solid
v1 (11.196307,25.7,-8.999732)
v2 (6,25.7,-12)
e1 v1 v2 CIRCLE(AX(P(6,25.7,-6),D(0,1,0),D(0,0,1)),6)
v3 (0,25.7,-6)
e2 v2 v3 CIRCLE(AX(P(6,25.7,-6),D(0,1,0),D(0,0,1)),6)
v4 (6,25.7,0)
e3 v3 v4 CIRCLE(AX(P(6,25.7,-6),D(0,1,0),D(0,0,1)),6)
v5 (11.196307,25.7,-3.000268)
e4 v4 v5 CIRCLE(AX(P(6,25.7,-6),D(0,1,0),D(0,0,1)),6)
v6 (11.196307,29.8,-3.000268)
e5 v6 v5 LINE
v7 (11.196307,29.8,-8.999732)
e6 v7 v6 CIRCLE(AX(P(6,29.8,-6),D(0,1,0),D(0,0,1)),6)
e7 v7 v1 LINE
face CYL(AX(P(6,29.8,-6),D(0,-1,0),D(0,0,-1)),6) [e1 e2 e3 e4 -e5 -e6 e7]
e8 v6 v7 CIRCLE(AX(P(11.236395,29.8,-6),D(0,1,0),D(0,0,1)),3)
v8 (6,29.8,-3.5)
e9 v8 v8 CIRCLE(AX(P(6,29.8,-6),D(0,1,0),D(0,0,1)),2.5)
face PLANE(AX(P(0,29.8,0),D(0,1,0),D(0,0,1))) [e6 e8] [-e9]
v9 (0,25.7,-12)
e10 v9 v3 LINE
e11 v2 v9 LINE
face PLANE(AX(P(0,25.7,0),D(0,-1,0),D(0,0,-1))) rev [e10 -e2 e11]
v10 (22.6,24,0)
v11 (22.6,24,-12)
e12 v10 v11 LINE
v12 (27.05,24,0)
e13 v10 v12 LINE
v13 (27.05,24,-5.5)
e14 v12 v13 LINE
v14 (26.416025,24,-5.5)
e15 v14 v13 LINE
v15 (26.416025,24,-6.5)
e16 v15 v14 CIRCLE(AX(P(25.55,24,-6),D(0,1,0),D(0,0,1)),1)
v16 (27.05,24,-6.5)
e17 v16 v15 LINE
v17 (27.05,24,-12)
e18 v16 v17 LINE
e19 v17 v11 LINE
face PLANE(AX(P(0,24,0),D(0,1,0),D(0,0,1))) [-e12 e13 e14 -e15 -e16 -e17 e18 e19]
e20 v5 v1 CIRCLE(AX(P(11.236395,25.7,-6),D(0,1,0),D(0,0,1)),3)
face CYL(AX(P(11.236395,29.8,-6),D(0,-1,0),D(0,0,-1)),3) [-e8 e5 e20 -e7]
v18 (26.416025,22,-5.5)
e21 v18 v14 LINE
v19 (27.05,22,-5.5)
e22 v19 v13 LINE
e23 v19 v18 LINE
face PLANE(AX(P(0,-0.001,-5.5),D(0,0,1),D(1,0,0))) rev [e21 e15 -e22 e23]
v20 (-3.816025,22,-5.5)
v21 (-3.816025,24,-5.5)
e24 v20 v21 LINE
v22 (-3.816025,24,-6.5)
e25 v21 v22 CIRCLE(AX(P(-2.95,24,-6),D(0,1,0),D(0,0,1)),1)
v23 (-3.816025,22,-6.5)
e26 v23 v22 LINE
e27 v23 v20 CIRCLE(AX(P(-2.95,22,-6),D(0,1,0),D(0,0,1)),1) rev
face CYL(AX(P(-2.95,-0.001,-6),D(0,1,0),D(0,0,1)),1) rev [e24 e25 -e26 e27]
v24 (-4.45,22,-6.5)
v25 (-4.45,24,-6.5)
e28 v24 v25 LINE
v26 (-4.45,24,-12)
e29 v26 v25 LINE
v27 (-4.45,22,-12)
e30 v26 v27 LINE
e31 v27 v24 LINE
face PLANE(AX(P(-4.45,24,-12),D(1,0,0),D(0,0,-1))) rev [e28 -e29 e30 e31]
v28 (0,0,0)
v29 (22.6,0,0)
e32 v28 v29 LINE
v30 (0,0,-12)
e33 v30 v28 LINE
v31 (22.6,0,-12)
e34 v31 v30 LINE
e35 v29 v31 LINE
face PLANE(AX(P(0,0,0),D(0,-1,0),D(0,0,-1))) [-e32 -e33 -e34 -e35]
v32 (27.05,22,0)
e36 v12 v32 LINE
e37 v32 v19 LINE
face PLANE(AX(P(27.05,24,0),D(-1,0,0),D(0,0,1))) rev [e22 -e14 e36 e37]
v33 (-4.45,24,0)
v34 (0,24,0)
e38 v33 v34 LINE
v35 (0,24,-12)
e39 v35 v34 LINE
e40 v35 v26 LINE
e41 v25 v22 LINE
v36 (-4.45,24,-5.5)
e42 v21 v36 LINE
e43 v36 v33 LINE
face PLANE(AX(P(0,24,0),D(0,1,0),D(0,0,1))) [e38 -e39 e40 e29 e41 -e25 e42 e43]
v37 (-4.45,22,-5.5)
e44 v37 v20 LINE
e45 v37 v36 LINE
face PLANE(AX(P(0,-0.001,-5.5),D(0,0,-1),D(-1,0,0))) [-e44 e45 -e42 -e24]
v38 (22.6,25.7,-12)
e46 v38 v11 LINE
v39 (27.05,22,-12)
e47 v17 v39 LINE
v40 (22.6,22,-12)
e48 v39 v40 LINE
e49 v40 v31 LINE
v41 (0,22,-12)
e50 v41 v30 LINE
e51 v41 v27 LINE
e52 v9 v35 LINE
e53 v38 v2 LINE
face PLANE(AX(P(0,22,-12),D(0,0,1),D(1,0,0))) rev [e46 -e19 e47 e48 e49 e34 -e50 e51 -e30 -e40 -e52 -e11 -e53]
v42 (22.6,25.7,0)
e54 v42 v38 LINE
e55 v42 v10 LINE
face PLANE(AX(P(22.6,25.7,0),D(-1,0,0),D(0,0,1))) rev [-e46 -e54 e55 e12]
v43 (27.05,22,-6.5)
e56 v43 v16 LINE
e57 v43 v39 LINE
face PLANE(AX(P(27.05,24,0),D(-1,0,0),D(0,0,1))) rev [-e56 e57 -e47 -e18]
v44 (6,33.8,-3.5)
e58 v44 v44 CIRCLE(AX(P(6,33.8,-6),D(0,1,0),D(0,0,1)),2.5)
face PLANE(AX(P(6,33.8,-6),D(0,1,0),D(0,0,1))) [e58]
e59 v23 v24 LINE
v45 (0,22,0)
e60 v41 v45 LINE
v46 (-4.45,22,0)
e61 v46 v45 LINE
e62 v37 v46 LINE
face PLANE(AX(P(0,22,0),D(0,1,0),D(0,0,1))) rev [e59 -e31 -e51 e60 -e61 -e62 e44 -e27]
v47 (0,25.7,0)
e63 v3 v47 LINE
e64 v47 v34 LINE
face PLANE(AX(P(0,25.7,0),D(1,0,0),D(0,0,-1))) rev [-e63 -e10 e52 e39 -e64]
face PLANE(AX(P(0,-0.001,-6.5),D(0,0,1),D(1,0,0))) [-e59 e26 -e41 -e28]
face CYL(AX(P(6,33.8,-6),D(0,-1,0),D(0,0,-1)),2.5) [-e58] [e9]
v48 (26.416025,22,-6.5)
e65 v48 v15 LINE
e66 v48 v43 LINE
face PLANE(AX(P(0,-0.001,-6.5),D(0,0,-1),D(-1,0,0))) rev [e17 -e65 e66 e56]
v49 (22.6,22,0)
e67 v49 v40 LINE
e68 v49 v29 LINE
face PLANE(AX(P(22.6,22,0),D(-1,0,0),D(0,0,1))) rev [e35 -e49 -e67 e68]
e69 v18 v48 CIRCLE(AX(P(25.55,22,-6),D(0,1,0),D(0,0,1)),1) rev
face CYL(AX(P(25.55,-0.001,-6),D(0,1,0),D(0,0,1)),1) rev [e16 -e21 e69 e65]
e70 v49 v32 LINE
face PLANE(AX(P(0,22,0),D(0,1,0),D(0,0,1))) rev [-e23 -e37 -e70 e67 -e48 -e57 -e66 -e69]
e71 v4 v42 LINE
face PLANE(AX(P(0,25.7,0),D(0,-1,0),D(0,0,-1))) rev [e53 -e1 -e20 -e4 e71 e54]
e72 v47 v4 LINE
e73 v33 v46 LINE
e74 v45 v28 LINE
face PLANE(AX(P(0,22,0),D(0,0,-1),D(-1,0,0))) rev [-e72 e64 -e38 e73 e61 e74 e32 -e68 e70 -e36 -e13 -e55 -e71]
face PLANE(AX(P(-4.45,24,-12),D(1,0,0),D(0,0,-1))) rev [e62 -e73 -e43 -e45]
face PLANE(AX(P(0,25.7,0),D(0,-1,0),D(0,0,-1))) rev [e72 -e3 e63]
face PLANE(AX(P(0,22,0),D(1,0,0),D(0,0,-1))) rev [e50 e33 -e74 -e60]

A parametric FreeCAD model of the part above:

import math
import FreeCAD as App
import Part
import Sketcher

doc = App.newDocument("Part")
body = doc.addObject("PartDesign::Body", "Body")
body.AllowCompound = True

# Sketch on XZ plane
sketch1 = body.newObject("Sketcher::SketchObject", "Sketch")
sketch1.AttachmentSupport = (doc.getObject("XZ_Plane"), [""])
sketch1.MapMode = "FlatFace"
sketch1.addGeometry([
    Part.LineSegment(App.Vector(0, -12, 0), App.Vector(0, 0, 0)),
    Part.LineSegment(App.Vector(0, 0, 0), App.Vector(23, 0, 0)),
    Part.LineSegment(App.Vector(23, 0, 0), App.Vector(23, -12, 0)),
    Part.LineSegment(App.Vector(23, -12, 0), App.Vector(0, -12, 0)),
], False)
sketch1.addConstraint([
    Sketcher.Constraint("Coincident", 0, 2, 1, 1),
    Sketcher.Constraint("Coincident", 1, 2, 2, 1),
    Sketcher.Constraint("Coincident", 2, 2, 3, 1),
    Sketcher.Constraint("Coincident", 3, 2, 0, 1),
    Sketcher.Constraint("Vertical", 0),
    Sketcher.Constraint("Horizontal", 1),
    Sketcher.Constraint("Vertical", 2),
    Sketcher.Constraint("Horizontal", 3),
    Sketcher.Constraint("Coincident", 0, 2, -1, 1),
    Sketcher.Constraint("DistanceY", 0, 1, 0, 2, 12.0),
    Sketcher.Constraint("DistanceX", 1, 1, 1, 2, 22.6),
])
pad1 = body.newObject("PartDesign::Pad", "Pad")
pad1.Profile = sketch1
pad1.Length = 22
pad1.Reversed = True

# Sketch on XZ plane
sketch2 = body.newObject("Sketcher::SketchObject", "Sketch001")
sketch2.AttachmentSupport = (doc.getObject("XZ_Plane"), [""])
sketch2.MapMode = "FlatFace"
sketch2.AttachmentOffset = App.Placement(App.Vector(0, 0, -22), App.Rotation())
sketch2.addGeometry([
    Part.LineSegment(App.Vector(-4, -12, 0), App.Vector(-4, 0, 0)),
    Part.LineSegment(App.Vector(-4, 0, 0), App.Vector(27, 0, 0)),
    Part.LineSegment(App.Vector(27, 0, 0), App.Vector(27, -12, 0)),
    Part.LineSegment(App.Vector(27, -12, 0), App.Vector(-4, -12, 0)),
], False)
sketch2.addConstraint([
    Sketcher.Constraint("Coincident", 0, 2, 1, 1),
    Sketcher.Constraint("Coincident", 1, 2, 2, 1),
    Sketcher.Constraint("Coincident", 2, 2, 3, 1),
    Sketcher.Constraint("Coincident", 3, 2, 0, 1),
    Sketcher.Constraint("Vertical", 0),
    Sketcher.Constraint("Horizontal", 1),
    Sketcher.Constraint("Vertical", 2),
    Sketcher.Constraint("Horizontal", 3),
    Sketcher.Constraint("PointOnObject", 0, 2, -1),
    Sketcher.Constraint("DistanceY", 0, 1, 0, 2, 12.0),
    Sketcher.Constraint("DistanceX", 1, 1, 1, 2, 31.5),
    Sketcher.Constraint("DistanceX", 0, 2, -1, 1, 4.45),
])
pad2 = body.newObject("PartDesign::Pad", "Pad001")
pad2.Profile = sketch2
pad2.Length = 2
pad2.Reversed = True

# Sketch on XZ plane
sketch3 = body.newObject("Sketcher::SketchObject", "Sketch002")
sketch3.AttachmentSupport = (doc.getObject("XZ_Plane"), [""])
sketch3.MapMode = "FlatFace"
sketch3.AttachmentOffset = App.Placement(App.Vector(0, 0, -24), App.Rotation())
sketch3.addGeometry([
    Part.LineSegment(App.Vector(0, -12, 0), App.Vector(0, 0, 0)),
    Part.LineSegment(App.Vector(0, 0, 0), App.Vector(23, 0, 0)),
    Part.LineSegment(App.Vector(23, 0, 0), App.Vector(23, -12, 0)),
    Part.LineSegment(App.Vector(23, -12, 0), App.Vector(0, -12, 0)),
], False)
sketch3.addConstraint([
    Sketcher.Constraint("Coincident", 0, 2, 1, 1),
    Sketcher.Constraint("Coincident", 1, 2, 2, 1),
    Sketcher.Constraint("Coincident", 2, 2, 3, 1),
    Sketcher.Constraint("Coincident", 3, 2, 0, 1),
    Sketcher.Constraint("Vertical", 0),
    Sketcher.Constraint("Horizontal", 1),
    Sketcher.Constraint("Vertical", 2),
    Sketcher.Constraint("Horizontal", 3),
    Sketcher.Constraint("Coincident", 0, 2, -1, 1),
    Sketcher.Constraint("DistanceY", 0, 1, 0, 2, 12.0),
    Sketcher.Constraint("DistanceX", 1, 1, 1, 2, 22.6),
])
pad3 = body.newObject("PartDesign::Pad", "Pad002")
pad3.Profile = sketch3
pad3.Length = 1.7
pad3.Reversed = True

# Sketch on XZ plane
sketch4 = body.newObject("Sketcher::SketchObject", "Sketch003")
sketch4.AttachmentSupport = (doc.getObject("XZ_Plane"), [""])
sketch4.MapMode = "FlatFace"
sketch4.AttachmentOffset = App.Placement(App.Vector(0, 0, -25.7), App.Rotation())
sketch4.addGeometry([
    Part.ArcOfCircle(Part.Circle(App.Vector(6, -6, 0), App.Vector(0, 0, 1), 6), math.radians(30), math.radians(330)),
    Part.ArcOfCircle(Part.Circle(App.Vector(11.2, -6, 0), App.Vector(0, 0, 1), 3), math.radians(-91), math.radians(91)),
], False)
sketch4.addConstraint([
    Sketcher.Constraint("Coincident", 0, 1, 1, 2),
    Sketcher.Constraint("Coincident", 1, 1, 0, 2),
    Sketcher.Constraint("Horizontal", 0, 3, 1, 3),
    Sketcher.Constraint("Radius", 0, 6.0),
    Sketcher.Constraint("Radius", 1, 3.0),
    Sketcher.Constraint("DistanceX", -1, 1, 0, 3, 6.0),
    Sketcher.Constraint("DistanceY", 0, 3, -1, 1, 6.0),
    Sketcher.Constraint("DistanceX", 0, 1, 1, 3, 0.040088),
])
pad4 = body.newObject("PartDesign::Pad", "Pad003")
pad4.Profile = sketch4
pad4.Length = 4.1
pad4.Reversed = True

# Sketch on XZ plane
sketch5 = body.newObject("Sketcher::SketchObject", "Sketch004")
sketch5.AttachmentSupport = (doc.getObject("XZ_Plane"), [""])
sketch5.MapMode = "FlatFace"
sketch5.AttachmentOffset = App.Placement(App.Vector(0, 0, -29.8), App.Rotation())
sketch5.addGeometry(Part.Circle(App.Vector(6, -6, 0), App.Vector(0, 0, 1), 2.5), False)
sketch5.addConstraint([
    Sketcher.Constraint("Diameter", 0, 5.0),
    Sketcher.Constraint("DistanceX", -1, 1, 0, 3, 6.0),
    Sketcher.Constraint("DistanceY", 0, 3, -1, 1, 6.0),
])
pad5 = body.newObject("PartDesign::Pad", "Pad004")
pad5.Profile = sketch5
pad5.Length = 4
pad5.Reversed = True

# Sketch on XZ plane
sketch6 = body.newObject("Sketcher::SketchObject", "Sketch005")
sketch6.AttachmentSupport = (doc.getObject("XZ_Plane"), [""])
sketch6.MapMode = "FlatFace"
sketch6.AttachmentOffset = App.Placement(App.Vector(0, 0, -24), App.Rotation())
sketch6.addGeometry([
    Part.LineSegment(App.Vector(-4.5, -5.5, 0), App.Vector(-3.8, -5.5, 0)),
    Part.ArcOfCircle(Part.Circle(App.Vector(-2.9, -6, 0), App.Vector(0, 0, 1), 1), math.radians(150), math.radians(180)),
    Part.LineSegment(App.Vector(-4, -6, 0), App.Vector(-4.5, -6, 0)),
    Part.LineSegment(App.Vector(-4.5, -6, 0), App.Vector(-4.5, -5.5, 0)),
], False)
sketch6.addConstraint([
    Sketcher.Constraint("Coincident", 0, 2, 1, 1),
    Sketcher.Constraint("Coincident", 1, 2, 2, 1),
    Sketcher.Constraint("Coincident", 2, 2, 3, 1),
    Sketcher.Constraint("Coincident", 3, 2, 0, 1),
    Sketcher.Constraint("Horizontal", 0),
    Sketcher.Constraint("Horizontal", 2),
    Sketcher.Constraint("Vertical", 3),
    Sketcher.Constraint("Equal", 2, 3),
    Sketcher.Constraint("Radius", 1, 1.0),
    Sketcher.Constraint("DistanceX", 2, 2, 2, 1, 0.5),
    Sketcher.Constraint("DistanceY", 1, 3, -1, 1, 6.0),
    Sketcher.Constraint("DistanceY", 1, 2, -1, 1, 6.0),
    Sketcher.Constraint("DistanceX", 1, 3, -1, 1, 2.95),
])
pocket1 = body.newObject("PartDesign::Pocket", "Pocket")
pocket1.Profile = sketch6
pocket1.Type = "UpToFirst"
pocket1.Reversed = True

# Sketch on XZ plane
sketch7 = body.newObject("Sketcher::SketchObject", "Sketch006")
sketch7.AttachmentSupport = (doc.getObject("XZ_Plane"), [""])
sketch7.MapMode = "FlatFace"
sketch7.AttachmentOffset = App.Placement(App.Vector(0, 0, -24), App.Rotation())
sketch7.addGeometry([
    Part.ArcOfCircle(Part.Circle(App.Vector(-2.9, -6, 0), App.Vector(0, 0, 1), 1), math.radians(-180), math.radians(-150)),
    Part.LineSegment(App.Vector(-3.8, -6.5, 0), App.Vector(-4.5, -6.5, 0)),
    Part.LineSegment(App.Vector(-4.5, -6.5, 0), App.Vector(-4.5, -6, 0)),
    Part.LineSegment(App.Vector(-4.5, -6, 0), App.Vector(-4, -6, 0)),
], False)
sketch7.addConstraint([
    Sketcher.Constraint("Coincident", 0, 2, 1, 1),
    Sketcher.Constraint("Coincident", 1, 2, 2, 1),
    Sketcher.Constraint("Coincident", 2, 2, 3, 1),
    Sketcher.Constraint("Coincident", 3, 2, 0, 1),
    Sketcher.Constraint("Horizontal", 1),
    Sketcher.Constraint("Vertical", 2),
    Sketcher.Constraint("Horizontal", 3),
    Sketcher.Constraint("Horizontal", 0, 3, 2, 2),
    Sketcher.Constraint("Equal", 3, 2),
    Sketcher.Constraint("Radius", 0, 1.0),
    Sketcher.Constraint("DistanceX", 3, 1, 3, 2, 0.5),
    Sketcher.Constraint("DistanceY", 0, 3, -1, 1, 6.0),
    Sketcher.Constraint("DistanceX", 0, 3, -1, 1, 2.95),
])
pocket2 = body.newObject("PartDesign::Pocket", "Pocket001")
pocket2.Profile = sketch7
pocket2.Type = "UpToFirst"
pocket2.Reversed = True

# Sketch on XZ plane
sketch8 = body.newObject("Sketcher::SketchObject", "Sketch007")
sketch8.AttachmentSupport = (doc.getObject("XZ_Plane"), [""])
sketch8.MapMode = "FlatFace"
sketch8.AttachmentOffset = App.Placement(App.Vector(0, 0, -24), App.Rotation())
sketch8.addGeometry([
    Part.ArcOfCircle(Part.Circle(App.Vector(-2.95, -6, 0), App.Vector(0, 0, 1), 1), math.radians(0), math.radians(150)),
    Part.LineSegment(App.Vector(-1.95, -6, 0), App.Vector(-2.45, -6, 0)),
    Part.LineSegment(App.Vector(-2.45, -6, 0), App.Vector(-2.45, -5.5, 0)),
    Part.LineSegment(App.Vector(-2.45, -5.5, 0), App.Vector(-3.82, -5.5, 0)),
], False)
sketch8.addConstraint([
    Sketcher.Constraint("Coincident", 0, 1, 1, 1),
    Sketcher.Constraint("Coincident", 1, 2, 2, 1),
    Sketcher.Constraint("Coincident", 2, 2, 3, 1),
    Sketcher.Constraint("Coincident", 3, 2, 0, 2),
    Sketcher.Constraint("Horizontal", 1),
    Sketcher.Constraint("Vertical", 2),
    Sketcher.Constraint("Horizontal", 3),
    Sketcher.Constraint("Radius", 0, 1.0),
    Sketcher.Constraint("DistanceY", 2, 1, 2, 2, 0.5),
    Sketcher.Constraint("DistanceY", 0, 3, -1, 1, 6.0),
    Sketcher.Constraint("DistanceY", 0, 1, -1, 1, 6.0),
    Sketcher.Constraint("DistanceX", 0, 3, -1, 1, 2.95),
    Sketcher.Constraint("DistanceX", 1, 2, 1, 1, 0.499082),
])
pocket3 = body.newObject("PartDesign::Pocket", "Pocket002")
pocket3.Profile = sketch8
pocket3.Type = "UpToFirst"
pocket3.Reversed = True

# Sketch on XZ plane
sketch9 = body.newObject("Sketcher::SketchObject", "Sketch008")
sketch9.AttachmentSupport = (doc.getObject("XZ_Plane"), [""])
sketch9.MapMode = "FlatFace"
sketch9.AttachmentOffset = App.Placement(App.Vector(0, 0, -24), App.Rotation())
sketch9.addGeometry([
    Part.LineSegment(App.Vector(-2.4, -5.5, 0), App.Vector(-2.4, -6, 0)),
    Part.LineSegment(App.Vector(-2.4, -6, 0), App.Vector(-4, -6, 0)),
    Part.ArcOfCircle(Part.Circle(App.Vector(-2.9, -6, 0), App.Vector(0, 0, 1), 1), math.radians(150), math.radians(180)),
    Part.LineSegment(App.Vector(-3.8, -5.5, 0), App.Vector(-2.4, -5.5, 0)),
], False)
sketch9.addConstraint([
    Sketcher.Constraint("Coincident", 0, 2, 1, 1),
    Sketcher.Constraint("Coincident", 1, 2, 2, 2),
    Sketcher.Constraint("Coincident", 2, 1, 3, 1),
    Sketcher.Constraint("Coincident", 3, 2, 0, 1),
    Sketcher.Constraint("Vertical", 0),
    Sketcher.Constraint("Horizontal", 1),
    Sketcher.Constraint("Horizontal", 3),
    Sketcher.Constraint("Horizontal", 2, 3, 0, 2),
    Sketcher.Constraint("Radius", 2, 1.0),
    Sketcher.Constraint("DistanceY", 0, 2, 0, 1, 0.5),
    Sketcher.Constraint("DistanceY", 2, 3, -1, 1, 6.0),
    Sketcher.Constraint("DistanceX", 2, 3, -1, 1, 2.95),
    Sketcher.Constraint("DistanceX", 1, 2, 1, 1, 1.500918),
])
pocket4 = body.newObject("PartDesign::Pocket", "Pocket003")
pocket4.Profile = sketch9
pocket4.Type = "UpToFirst"
pocket4.Reversed = True

# Sketch on XZ plane
sketch10 = body.newObject("Sketcher::SketchObject", "Sketch009")
sketch10.AttachmentSupport = (doc.getObject("XZ_Plane"), [""])
sketch10.MapMode = "FlatFace"
sketch10.AttachmentOffset = App.Placement(App.Vector(0, 0, -24), App.Rotation())
sketch10.addGeometry([
    Part.LineSegment(App.Vector(-2.45, -6, 0), App.Vector(-1.95, -6, 0)),
    Part.ArcOfCircle(Part.Circle(App.Vector(-2.95, -6, 0), App.Vector(0, 0, 1), 1), math.radians(-150), math.radians(0)),
    Part.LineSegment(App.Vector(-3.82, -6.5, 0), App.Vector(-2.45, -6.5, 0)),
    Part.LineSegment(App.Vector(-2.45, -6.5, 0), App.Vector(-2.45, -6, 0)),
], False)
sketch10.addConstraint([
    Sketcher.Constraint("Coincident", 0, 2, 1, 2),
    Sketcher.Constraint("Coincident", 1, 1, 2, 1),
    Sketcher.Constraint("Coincident", 2, 2, 3, 1),
    Sketcher.Constraint("Coincident", 3, 2, 0, 1),
    Sketcher.Constraint("Horizontal", 0),
    Sketcher.Constraint("Horizontal", 2),
    Sketcher.Constraint("Vertical", 3),
    Sketcher.Constraint("Horizontal", 1, 3, 0, 2),
    Sketcher.Constraint("Radius", 1, 1.0),
    Sketcher.Constraint("DistanceY", 3, 1, 3, 2, 0.5),
    Sketcher.Constraint("DistanceY", 1, 3, -1, 1, 6.0),
    Sketcher.Constraint("DistanceX", 1, 3, -1, 1, 2.95),
    Sketcher.Constraint("DistanceX", 0, 1, 0, 2, 0.499082),
])
pocket5 = body.newObject("PartDesign::Pocket", "Pocket004")
pocket5.Profile = sketch10
pocket5.Type = "UpToFirst"
pocket5.Reversed = True

# Sketch on XZ plane
sketch11 = body.newObject("Sketcher::SketchObject", "Sketch010")
sketch11.AttachmentSupport = (doc.getObject("XZ_Plane"), [""])
sketch11.MapMode = "FlatFace"
sketch11.AttachmentOffset = App.Placement(App.Vector(0, 0, -24), App.Rotation())
sketch11.addGeometry([
    Part.LineSegment(App.Vector(-4, -6, 0), App.Vector(-2.4, -6, 0)),
    Part.LineSegment(App.Vector(-2.4, -6, 0), App.Vector(-2.4, -6.5, 0)),
    Part.LineSegment(App.Vector(-2.4, -6.5, 0), App.Vector(-3.8, -6.5, 0)),
    Part.ArcOfCircle(Part.Circle(App.Vector(-2.9, -6, 0), App.Vector(0, 0, 1), 1), math.radians(-180), math.radians(-150)),
], False)
sketch11.addConstraint([
    Sketcher.Constraint("Coincident", 0, 2, 1, 1),
    Sketcher.Constraint("Coincident", 1, 2, 2, 1),
    Sketcher.Constraint("Coincident", 2, 2, 3, 2),
    Sketcher.Constraint("Coincident", 3, 1, 0, 1),
    Sketcher.Constraint("Horizontal", 0),
    Sketcher.Constraint("Vertical", 1),
    Sketcher.Constraint("Horizontal", 2),
    Sketcher.Constraint("Horizontal", 3, 3, 0, 2),
    Sketcher.Constraint("Radius", 3, 1.0),
    Sketcher.Constraint("DistanceY", 1, 2, 1, 1, 0.5),
    Sketcher.Constraint("DistanceY", 3, 3, -1, 1, 6.0),
    Sketcher.Constraint("DistanceX", 3, 3, -1, 1, 2.95),
    Sketcher.Constraint("DistanceX", 0, 1, 0, 2, 1.500918),
])
pocket6 = body.newObject("PartDesign::Pocket", "Pocket005")
pocket6.Profile = sketch11
pocket6.Type = "UpToFirst"
pocket6.Reversed = True

# Sketch on XZ plane
sketch12 = body.newObject("Sketcher::SketchObject", "Sketch011")
sketch12.AttachmentSupport = (doc.getObject("XZ_Plane"), [""])
sketch12.MapMode = "FlatFace"
sketch12.AttachmentOffset = App.Placement(App.Vector(0, 0, -24), App.Rotation())
sketch12.addGeometry([
    Part.ArcOfCircle(Part.Circle(App.Vector(-2.95, -6, 0), App.Vector(0, 0, 1), 1), math.radians(0), math.radians(150)),
    Part.LineSegment(App.Vector(-1.95, -6, 0), App.Vector(-2.45, -6, 0)),
    Part.LineSegment(App.Vector(-2.45, -6, 0), App.Vector(-2.45, -5.5, 0)),
    Part.LineSegment(App.Vector(-2.45, -5.5, 0), App.Vector(-3.82, -5.5, 0)),
], False)
sketch12.addConstraint([
    Sketcher.Constraint("Coincident", 0, 1, 1, 1),
    Sketcher.Constraint("Coincident", 1, 2, 2, 1),
    Sketcher.Constraint("Coincident", 2, 2, 3, 1),
    Sketcher.Constraint("Coincident", 3, 2, 0, 2),
    Sketcher.Constraint("Horizontal", 1),
    Sketcher.Constraint("Vertical", 2),
    Sketcher.Constraint("Horizontal", 3),
    Sketcher.Constraint("Radius", 0, 1.0),
    Sketcher.Constraint("DistanceY", 2, 1, 2, 2, 0.5),
    Sketcher.Constraint("DistanceY", 0, 3, -1, 1, 6.0),
    Sketcher.Constraint("DistanceY", 0, 1, -1, 1, 6.0),
    Sketcher.Constraint("DistanceX", 0, 3, -1, 1, 2.95),
    Sketcher.Constraint("DistanceX", 1, 2, 1, 1, 0.499082),
])
pocket7 = body.newObject("PartDesign::Pocket", "Pocket006")
pocket7.Profile = sketch12
pocket7.Length = 2
pocket7.Reversed = True

# Sketch on XZ plane
sketch13 = body.newObject("Sketcher::SketchObject", "Sketch012")
sketch13.AttachmentSupport = (doc.getObject("XZ_Plane"), [""])
sketch13.MapMode = "FlatFace"
sketch13.AttachmentOffset = App.Placement(App.Vector(0, 0, -24), App.Rotation())
sketch13.addGeometry([
    Part.LineSegment(App.Vector(-2.4, -5.5, 0), App.Vector(-2.4, -6, 0)),
    Part.LineSegment(App.Vector(-2.4, -6, 0), App.Vector(-4, -6, 0)),
    Part.ArcOfCircle(Part.Circle(App.Vector(-2.9, -6, 0), App.Vector(0, 0, 1), 1), math.radians(150), math.radians(180)),
    Part.LineSegment(App.Vector(-3.8, -5.5, 0), App.Vector(-2.4, -5.5, 0)),
], False)
sketch13.addConstraint([
    Sketcher.Constraint("Coincident", 0, 2, 1, 1),
    Sketcher.Constraint("Coincident", 1, 2, 2, 2),
    Sketcher.Constraint("Coincident", 2, 1, 3, 1),
    Sketcher.Constraint("Coincident", 3, 2, 0, 1),
    Sketcher.Constraint("Vertical", 0),
    Sketcher.Constraint("Horizontal", 1),
    Sketcher.Constraint("Horizontal", 3),
    Sketcher.Constraint("Horizontal", 2, 3, 0, 2),
    Sketcher.Constraint("Radius", 2, 1.0),
    Sketcher.Constraint("DistanceY", 0, 2, 0, 1, 0.5),
    Sketcher.Constraint("DistanceY", 2, 3, -1, 1, 6.0),
    Sketcher.Constraint("DistanceX", 2, 3, -1, 1, 2.95),
    Sketcher.Constraint("DistanceX", 1, 2, 1, 1, 1.500918),
])
pocket8 = body.newObject("PartDesign::Pocket", "Pocket007")
pocket8.Profile = sketch13
pocket8.Length = 2
pocket8.Reversed = True

# Sketch on XZ plane
sketch14 = body.newObject("Sketcher::SketchObject", "Sketch013")
sketch14.AttachmentSupport = (doc.getObject("XZ_Plane"), [""])
sketch14.MapMode = "FlatFace"
sketch14.AttachmentOffset = App.Placement(App.Vector(0, 0, -24), App.Rotation())
sketch14.addGeometry([
    Part.LineSegment(App.Vector(-2.45, -6, 0), App.Vector(-1.95, -6, 0)),
    Part.ArcOfCircle(Part.Circle(App.Vector(-2.95, -6, 0), App.Vector(0, 0, 1), 1), math.radians(-150), math.radians(0)),
    Part.LineSegment(App.Vector(-3.82, -6.5, 0), App.Vector(-2.45, -6.5, 0)),
    Part.LineSegment(App.Vector(-2.45, -6.5, 0), App.Vector(-2.45, -6, 0)),
], False)
sketch14.addConstraint([
    Sketcher.Constraint("Coincident", 0, 2, 1, 2),
    Sketcher.Constraint("Coincident", 1, 1, 2, 1),
    Sketcher.Constraint("Coincident", 2, 2, 3, 1),
    Sketcher.Constraint("Coincident", 3, 2, 0, 1),
    Sketcher.Constraint("Horizontal", 0),
    Sketcher.Constraint("Horizontal", 2),
    Sketcher.Constraint("Vertical", 3),
    Sketcher.Constraint("Horizontal", 1, 3, 0, 2),
    Sketcher.Constraint("Radius", 1, 1.0),
    Sketcher.Constraint("DistanceY", 3, 1, 3, 2, 0.5),
    Sketcher.Constraint("DistanceY", 1, 3, -1, 1, 6.0),
    Sketcher.Constraint("DistanceX", 1, 3, -1, 1, 2.95),
    Sketcher.Constraint("DistanceX", 0, 1, 0, 2, 0.499082),
])
pocket9 = body.newObject("PartDesign::Pocket", "Pocket008")
pocket9.Profile = sketch14
pocket9.Length = 2
pocket9.Reversed = True

# Sketch on XZ plane
sketch15 = body.newObject("Sketcher::SketchObject", "Sketch014")
sketch15.AttachmentSupport = (doc.getObject("XZ_Plane"), [""])
sketch15.MapMode = "FlatFace"
sketch15.AttachmentOffset = App.Placement(App.Vector(0, 0, -24), App.Rotation())
sketch15.addGeometry([
    Part.LineSegment(App.Vector(-4, -6, 0), App.Vector(-2.4, -6, 0)),
    Part.LineSegment(App.Vector(-2.4, -6, 0), App.Vector(-2.4, -6.5, 0)),
    Part.LineSegment(App.Vector(-2.4, -6.5, 0), App.Vector(-3.8, -6.5, 0)),
    Part.ArcOfCircle(Part.Circle(App.Vector(-2.9, -6, 0), App.Vector(0, 0, 1), 1), math.radians(-180), math.radians(-150)),
], False)
sketch15.addConstraint([
    Sketcher.Constraint("Coincident", 0, 2, 1, 1),
    Sketcher.Constraint("Coincident", 1, 2, 2, 1),
    Sketcher.Constraint("Coincident", 2, 2, 3, 2),
    Sketcher.Constraint("Coincident", 3, 1, 0, 1),
    Sketcher.Constraint("Horizontal", 0),
    Sketcher.Constraint("Vertical", 1),
    Sketcher.Constraint("Horizontal", 2),
    Sketcher.Constraint("Horizontal", 3, 3, 0, 2),
    Sketcher.Constraint("Radius", 3, 1.0),
    Sketcher.Constraint("DistanceY", 1, 2, 1, 1, 0.5),
    Sketcher.Constraint("DistanceY", 3, 3, -1, 1, 6.0),
    Sketcher.Constraint("DistanceX", 3, 3, -1, 1, 2.95),
    Sketcher.Constraint("DistanceX", 0, 1, 0, 2, 1.500918),
])
pocket10 = body.newObject("PartDesign::Pocket", "Pocket009")
pocket10.Profile = sketch15
pocket10.Length = 2
pocket10.Reversed = True

# Sketch on XZ plane
sketch16 = body.newObject("Sketcher::SketchObject", "Sketch015")
sketch16.AttachmentSupport = (doc.getObject("XZ_Plane"), [""])
sketch16.MapMode = "FlatFace"
sketch16.AttachmentOffset = App.Placement(App.Vector(0, 0, -24), App.Rotation())
sketch16.addGeometry([
    Part.ArcOfCircle(Part.Circle(App.Vector(25.5, -6, 0), App.Vector(0, 0, 1), 1), math.radians(0), math.radians(30)),
    Part.LineSegment(App.Vector(26.6, -6, 0), App.Vector(25, -6, 0)),
    Part.LineSegment(App.Vector(25, -6, 0), App.Vector(25, -5.5, 0)),
    Part.LineSegment(App.Vector(25, -5.5, 0), App.Vector(26.4, -5.5, 0)),
], False)
sketch16.addConstraint([
    Sketcher.Constraint("Coincident", 0, 1, 1, 1),
    Sketcher.Constraint("Coincident", 1, 2, 2, 1),
    Sketcher.Constraint("Coincident", 2, 2, 3, 1),
    Sketcher.Constraint("Coincident", 3, 2, 0, 2),
    Sketcher.Constraint("Horizontal", 1),
    Sketcher.Constraint("Vertical", 2),
    Sketcher.Constraint("Horizontal", 3),
    Sketcher.Constraint("Radius", 0, 1.0),
    Sketcher.Constraint("DistanceY", 2, 1, 2, 2, 0.5),
    Sketcher.Constraint("DistanceY", 0, 3, -1, 1, 6.0),
    Sketcher.Constraint("DistanceY", 0, 1, -1, 1, 6.0),
    Sketcher.Constraint("DistanceX", -1, 1, 0, 3, 25.55),
    Sketcher.Constraint("DistanceX", 3, 1, 3, 2, 1.368468),
])
pocket11 = body.newObject("PartDesign::Pocket", "Pocket010")
pocket11.Profile = sketch16
pocket11.Type = "UpToFirst"
pocket11.Reversed = True

# Sketch on XZ plane
sketch17 = body.newObject("Sketcher::SketchObject", "Sketch016")
sketch17.AttachmentSupport = (doc.getObject("XZ_Plane"), [""])
sketch17.MapMode = "FlatFace"
sketch17.AttachmentOffset = App.Placement(App.Vector(0, 0, -24), App.Rotation())
sketch17.addGeometry([
    Part.LineSegment(App.Vector(25.05, -5.5, 0), App.Vector(25.05, -6, 0)),
    Part.LineSegment(App.Vector(25.05, -6, 0), App.Vector(24.55, -6, 0)),
    Part.ArcOfCircle(Part.Circle(App.Vector(25.55, -6, 0), App.Vector(0, 0, 1), 1), math.radians(30), math.radians(180)),
    Part.LineSegment(App.Vector(26.42, -5.5, 0), App.Vector(25.05, -5.5, 0)),
], False)
sketch17.addConstraint([
    Sketcher.Constraint("Coincident", 0, 2, 1, 1),
    Sketcher.Constraint("Coincident", 1, 2, 2, 2),
    Sketcher.Constraint("Coincident", 2, 1, 3, 1),
    Sketcher.Constraint("Coincident", 3, 2, 0, 1),
    Sketcher.Constraint("Vertical", 0),
    Sketcher.Constraint("Horizontal", 1),
    Sketcher.Constraint("Horizontal", 3),
    Sketcher.Constraint("Horizontal", 2, 3, 0, 2),
    Sketcher.Constraint("Radius", 2, 1.0),
    Sketcher.Constraint("DistanceY", 0, 2, 0, 1, 0.5),
    Sketcher.Constraint("DistanceY", 2, 3, -1, 1, 6.0),
    Sketcher.Constraint("DistanceX", -1, 1, 2, 3, 25.55),
    Sketcher.Constraint("DistanceX", 3, 2, 3, 1, 1.368468),
])
pocket12 = body.newObject("PartDesign::Pocket", "Pocket011")
pocket12.Profile = sketch17
pocket12.Type = "UpToFirst"
pocket12.Reversed = True

# Sketch on XZ plane
sketch18 = body.newObject("Sketcher::SketchObject", "Sketch017")
sketch18.AttachmentSupport = (doc.getObject("XZ_Plane"), [""])
sketch18.MapMode = "FlatFace"
sketch18.AttachmentOffset = App.Placement(App.Vector(0, 0, -24), App.Rotation())
sketch18.addGeometry([
    Part.ArcOfCircle(Part.Circle(App.Vector(25.5, -6, 0), App.Vector(0, 0, 1), 1), math.radians(0), math.radians(30)),
    Part.LineSegment(App.Vector(26.6, -6, 0), App.Vector(25, -6, 0)),
    Part.LineSegment(App.Vector(25, -6, 0), App.Vector(25, -5.5, 0)),
    Part.LineSegment(App.Vector(25, -5.5, 0), App.Vector(26.4, -5.5, 0)),
], False)
sketch18.addConstraint([
    Sketcher.Constraint("Coincident", 0, 1, 1, 1),
    Sketcher.Constraint("Coincident", 1, 2, 2, 1),
    Sketcher.Constraint("Coincident", 2, 2, 3, 1),
    Sketcher.Constraint("Coincident", 3, 2, 0, 2),
    Sketcher.Constraint("Horizontal", 1),
    Sketcher.Constraint("Vertical", 2),
    Sketcher.Constraint("Horizontal", 3),
    Sketcher.Constraint("Radius", 0, 1.0),
    Sketcher.Constraint("DistanceY", 2, 1, 2, 2, 0.5),
    Sketcher.Constraint("DistanceY", 0, 3, -1, 1, 6.0),
    Sketcher.Constraint("DistanceY", 0, 1, -1, 1, 6.0),
    Sketcher.Constraint("DistanceX", -1, 1, 0, 3, 25.55),
    Sketcher.Constraint("DistanceX", 3, 1, 3, 2, 1.368468),
])
pocket13 = body.newObject("PartDesign::Pocket", "Pocket012")
pocket13.Profile = sketch18
pocket13.Length = 2
pocket13.Reversed = True

# Sketch on XZ plane
sketch19 = body.newObject("Sketcher::SketchObject", "Sketch018")
sketch19.AttachmentSupport = (doc.getObject("XZ_Plane"), [""])
sketch19.MapMode = "FlatFace"
sketch19.AttachmentOffset = App.Placement(App.Vector(0, 0, -24), App.Rotation())
sketch19.addGeometry([
    Part.LineSegment(App.Vector(25.05, -5.5, 0), App.Vector(25.05, -6, 0)),
    Part.LineSegment(App.Vector(25.05, -6, 0), App.Vector(24.55, -6, 0)),
    Part.ArcOfCircle(Part.Circle(App.Vector(25.55, -6, 0), App.Vector(0, 0, 1), 1), math.radians(30), math.radians(180)),
    Part.LineSegment(App.Vector(26.42, -5.5, 0), App.Vector(25.05, -5.5, 0)),
], False)
sketch19.addConstraint([
    Sketcher.Constraint("Coincident", 0, 2, 1, 1),
    Sketcher.Constraint("Coincident", 1, 2, 2, 2),
    Sketcher.Constraint("Coincident", 2, 1, 3, 1),
    Sketcher.Constraint("Coincident", 3, 2, 0, 1),
    Sketcher.Constraint("Vertical", 0),
    Sketcher.Constraint("Horizontal", 1),
    Sketcher.Constraint("Horizontal", 3),
    Sketcher.Constraint("Horizontal", 2, 3, 0, 2),
    Sketcher.Constraint("Radius", 2, 1.0),
    Sketcher.Constraint("DistanceY", 0, 2, 0, 1, 0.5),
    Sketcher.Constraint("DistanceY", 2, 3, -1, 1, 6.0),
    Sketcher.Constraint("DistanceX", -1, 1, 2, 3, 25.55),
    Sketcher.Constraint("DistanceX", 3, 2, 3, 1, 1.368468),
])
pocket14 = body.newObject("PartDesign::Pocket", "Pocket013")
pocket14.Profile = sketch19
pocket14.Length = 2
pocket14.Reversed = True

# Sketch on XZ plane
sketch20 = body.newObject("Sketcher::SketchObject", "Sketch019")
sketch20.AttachmentSupport = (doc.getObject("XZ_Plane"), [""])
sketch20.MapMode = "FlatFace"
sketch20.AttachmentOffset = App.Placement(App.Vector(0, 0, -24), App.Rotation())
sketch20.addGeometry([
    Part.LineSegment(App.Vector(25, -6, 0), App.Vector(26.6, -6, 0)),
    Part.ArcOfCircle(Part.Circle(App.Vector(25.5, -6, 0), App.Vector(0, 0, 1), 1), math.radians(-30), math.radians(0)),
    Part.LineSegment(App.Vector(26.4, -6.5, 0), App.Vector(25, -6.5, 0)),
    Part.LineSegment(App.Vector(25, -6.5, 0), App.Vector(25, -6, 0)),
], False)
sketch20.addConstraint([
    Sketcher.Constraint("Coincident", 0, 2, 1, 2),
    Sketcher.Constraint("Coincident", 1, 1, 2, 1),
    Sketcher.Constraint("Coincident", 2, 2, 3, 1),
    Sketcher.Constraint("Coincident", 3, 2, 0, 1),
    Sketcher.Constraint("Horizontal", 0),
    Sketcher.Constraint("Horizontal", 2),
    Sketcher.Constraint("Vertical", 3),
    Sketcher.Constraint("Horizontal", 1, 3, 0, 2),
    Sketcher.Constraint("Radius", 1, 1.0),
    Sketcher.Constraint("DistanceY", 3, 1, 3, 2, 0.5),
    Sketcher.Constraint("DistanceY", 1, 3, -1, 1, 6.0),
    Sketcher.Constraint("DistanceX", -1, 1, 1, 3, 25.55),
    Sketcher.Constraint("DistanceX", 2, 2, 2, 1, 1.368468),
])
pocket15 = body.newObject("PartDesign::Pocket", "Pocket014")
pocket15.Profile = sketch20
pocket15.Type = "UpToFirst"
pocket15.Reversed = True

# Sketch on XZ plane
sketch21 = body.newObject("Sketcher::SketchObject", "Sketch020")
sketch21.AttachmentSupport = (doc.getObject("XZ_Plane"), [""])
sketch21.MapMode = "FlatFace"
sketch21.AttachmentOffset = App.Placement(App.Vector(0, 0, -24), App.Rotation())
sketch21.addGeometry([
    Part.LineSegment(App.Vector(24.55, -6, 0), App.Vector(25.05, -6, 0)),
    Part.LineSegment(App.Vector(25.05, -6, 0), App.Vector(25.05, -6.5, 0)),
    Part.LineSegment(App.Vector(25.05, -6.5, 0), App.Vector(26.42, -6.5, 0)),
    Part.ArcOfCircle(Part.Circle(App.Vector(25.55, -6, 0), App.Vector(0, 0, 1), 1), math.radians(180), math.radians(330)),
], False)
sketch21.addConstraint([
    Sketcher.Constraint("Coincident", 0, 2, 1, 1),
    Sketcher.Constraint("Coincident", 1, 2, 2, 1),
    Sketcher.Constraint("Coincident", 2, 2, 3, 2),
    Sketcher.Constraint("Coincident", 3, 1, 0, 1),
    Sketcher.Constraint("Horizontal", 0),
    Sketcher.Constraint("Vertical", 1),
    Sketcher.Constraint("Horizontal", 2),
    Sketcher.Constraint("Horizontal", 3, 3, 0, 2),
    Sketcher.Constraint("Radius", 3, 1.0),
    Sketcher.Constraint("DistanceY", 1, 2, 1, 1, 0.5),
    Sketcher.Constraint("DistanceY", 3, 3, -1, 1, 6.0),
    Sketcher.Constraint("DistanceX", -1, 1, 3, 3, 25.55),
    Sketcher.Constraint("DistanceX", 2, 1, 2, 2, 1.368468),
])
pocket16 = body.newObject("PartDesign::Pocket", "Pocket015")
pocket16.Profile = sketch21
pocket16.Type = "UpToFirst"
pocket16.Reversed = True

# Sketch on XZ plane
sketch22 = body.newObject("Sketcher::SketchObject", "Sketch021")
sketch22.AttachmentSupport = (doc.getObject("XZ_Plane"), [""])
sketch22.MapMode = "FlatFace"
sketch22.AttachmentOffset = App.Placement(App.Vector(0, 0, -24), App.Rotation())
sketch22.addGeometry([
    Part.LineSegment(App.Vector(25, -6, 0), App.Vector(26.6, -6, 0)),
    Part.ArcOfCircle(Part.Circle(App.Vector(25.5, -6, 0), App.Vector(0, 0, 1), 1), math.radians(-30), math.radians(0)),
    Part.LineSegment(App.Vector(26.4, -6.5, 0), App.Vector(25, -6.5, 0)),
    Part.LineSegment(App.Vector(25, -6.5, 0), App.Vector(25, -6, 0)),
], False)
sketch22.addConstraint([
    Sketcher.Constraint("Coincident", 0, 2, 1, 2),
    Sketcher.Constraint("Coincident", 1, 1, 2, 1),
    Sketcher.Constraint("Coincident", 2, 2, 3, 1),
    Sketcher.Constraint("Coincident", 3, 2, 0, 1),
    Sketcher.Constraint("Horizontal", 0),
    Sketcher.Constraint("Horizontal", 2),
    Sketcher.Constraint("Vertical", 3),
    Sketcher.Constraint("Horizontal", 1, 3, 0, 2),
    Sketcher.Constraint("Radius", 1, 1.0),
    Sketcher.Constraint("DistanceY", 3, 1, 3, 2, 0.5),
    Sketcher.Constraint("DistanceY", 1, 3, -1, 1, 6.0),
    Sketcher.Constraint("DistanceX", -1, 1, 1, 3, 25.55),
    Sketcher.Constraint("DistanceX", 2, 2, 2, 1, 1.368468),
])
pocket17 = body.newObject("PartDesign::Pocket", "Pocket016")
pocket17.Profile = sketch22
pocket17.Length = 2
pocket17.Reversed = True

# Sketch on XZ plane
sketch23 = body.newObject("Sketcher::SketchObject", "Sketch022")
sketch23.AttachmentSupport = (doc.getObject("XZ_Plane"), [""])
sketch23.MapMode = "FlatFace"
sketch23.AttachmentOffset = App.Placement(App.Vector(0, 0, -24), App.Rotation())
sketch23.addGeometry([
    Part.LineSegment(App.Vector(24.55, -6, 0), App.Vector(25.05, -6, 0)),
    Part.LineSegment(App.Vector(25.05, -6, 0), App.Vector(25.05, -6.5, 0)),
    Part.LineSegment(App.Vector(25.05, -6.5, 0), App.Vector(26.42, -6.5, 0)),
    Part.ArcOfCircle(Part.Circle(App.Vector(25.55, -6, 0), App.Vector(0, 0, 1), 1), math.radians(180), math.radians(330)),
], False)
sketch23.addConstraint([
    Sketcher.Constraint("Coincident", 0, 2, 1, 1),
    Sketcher.Constraint("Coincident", 1, 2, 2, 1),
    Sketcher.Constraint("Coincident", 2, 2, 3, 2),
    Sketcher.Constraint("Coincident", 3, 1, 0, 1),
    Sketcher.Constraint("Horizontal", 0),
    Sketcher.Constraint("Vertical", 1),
    Sketcher.Constraint("Horizontal", 2),
    Sketcher.Constraint("Horizontal", 3, 3, 0, 2),
    Sketcher.Constraint("Radius", 3, 1.0),
    Sketcher.Constraint("DistanceY", 1, 2, 1, 1, 0.5),
    Sketcher.Constraint("DistanceY", 3, 3, -1, 1, 6.0),
    Sketcher.Constraint("DistanceX", -1, 1, 3, 3, 25.55),
    Sketcher.Constraint("DistanceX", 2, 1, 2, 2, 1.368468),
])
pocket18 = body.newObject("PartDesign::Pocket", "Pocket017")
pocket18.Profile = sketch23
pocket18.Length = 2
pocket18.Reversed = True

# Sketch on XZ plane
sketch24 = body.newObject("Sketcher::SketchObject", "Sketch023")
sketch24.AttachmentSupport = (doc.getObject("XZ_Plane"), [""])
sketch24.MapMode = "FlatFace"
sketch24.AttachmentOffset = App.Placement(App.Vector(0, 0, -24), App.Rotation())
sketch24.addGeometry([
    Part.LineSegment(App.Vector(26.6, -6, 0), App.Vector(27.1, -6, 0)),
    Part.LineSegment(App.Vector(27.1, -6, 0), App.Vector(27.1, -6.5, 0)),
    Part.LineSegment(App.Vector(27.1, -6.5, 0), App.Vector(26.4, -6.5, 0)),
    Part.ArcOfCircle(Part.Circle(App.Vector(25.5, -6, 0), App.Vector(0, 0, 1), 1), math.radians(-30), math.radians(0)),
], False)
sketch24.addConstraint([
    Sketcher.Constraint("Coincident", 0, 2, 1, 1),
    Sketcher.Constraint("Coincident", 1, 2, 2, 1),
    Sketcher.Constraint("Coincident", 2, 2, 3, 1),
    Sketcher.Constraint("Coincident", 3, 2, 0, 1),
    Sketcher.Constraint("Horizontal", 0),
    Sketcher.Constraint("Vertical", 1),
    Sketcher.Constraint("Horizontal", 2),
    Sketcher.Constraint("Horizontal", 3, 3, 0, 2),
    Sketcher.Constraint("Equal", 0, 1),
    Sketcher.Constraint("Radius", 3, 1.0),
    Sketcher.Constraint("DistanceX", 0, 1, 0, 2, 0.5),
    Sketcher.Constraint("DistanceY", 3, 3, -1, 1, 6.0),
    Sketcher.Constraint("DistanceX", -1, 1, 3, 3, 25.55),
])
pocket19 = body.newObject("PartDesign::Pocket", "Pocket018")
pocket19.Profile = sketch24
pocket19.Type = "UpToFirst"
pocket19.Reversed = True

# Sketch on XZ plane
sketch25 = body.newObject("Sketcher::SketchObject", "Sketch024")
sketch25.AttachmentSupport = (doc.getObject("XZ_Plane"), [""])
sketch25.MapMode = "FlatFace"
sketch25.AttachmentOffset = App.Placement(App.Vector(0, 0, -24), App.Rotation())
sketch25.addGeometry([
    Part.LineSegment(App.Vector(27.1, -5.5, 0), App.Vector(27.1, -6, 0)),
    Part.LineSegment(App.Vector(27.1, -6, 0), App.Vector(26.6, -6, 0)),
    Part.ArcOfCircle(Part.Circle(App.Vector(25.5, -6, 0), App.Vector(0, 0, 1), 1), math.radians(0), math.radians(30)),
    Part.LineSegment(App.Vector(26.4, -5.5, 0), App.Vector(27.1, -5.5, 0)),
], False)
sketch25.addConstraint([
    Sketcher.Constraint("Coincident", 0, 2, 1, 1),
    Sketcher.Constraint("Coincident", 1, 2, 2, 1),
    Sketcher.Constraint("Coincident", 2, 2, 3, 1),
    Sketcher.Constraint("Coincident", 3, 2, 0, 1),
    Sketcher.Constraint("Vertical", 0),
    Sketcher.Constraint("Horizontal", 1),
    Sketcher.Constraint("Horizontal", 3),
    Sketcher.Constraint("Horizontal", 2, 3, 0, 2),
    Sketcher.Constraint("Equal", 1, 0),
    Sketcher.Constraint("Radius", 2, 1.0),
    Sketcher.Constraint("DistanceX", 1, 2, 1, 1, 0.5),
    Sketcher.Constraint("DistanceY", 2, 3, -1, 1, 6.0),
    Sketcher.Constraint("DistanceX", -1, 1, 2, 3, 25.55),
])
pocket20 = body.newObject("PartDesign::Pocket", "Pocket019")
pocket20.Profile = sketch25
pocket20.Type = "UpToFirst"
pocket20.Reversed = True

doc.recompute()
